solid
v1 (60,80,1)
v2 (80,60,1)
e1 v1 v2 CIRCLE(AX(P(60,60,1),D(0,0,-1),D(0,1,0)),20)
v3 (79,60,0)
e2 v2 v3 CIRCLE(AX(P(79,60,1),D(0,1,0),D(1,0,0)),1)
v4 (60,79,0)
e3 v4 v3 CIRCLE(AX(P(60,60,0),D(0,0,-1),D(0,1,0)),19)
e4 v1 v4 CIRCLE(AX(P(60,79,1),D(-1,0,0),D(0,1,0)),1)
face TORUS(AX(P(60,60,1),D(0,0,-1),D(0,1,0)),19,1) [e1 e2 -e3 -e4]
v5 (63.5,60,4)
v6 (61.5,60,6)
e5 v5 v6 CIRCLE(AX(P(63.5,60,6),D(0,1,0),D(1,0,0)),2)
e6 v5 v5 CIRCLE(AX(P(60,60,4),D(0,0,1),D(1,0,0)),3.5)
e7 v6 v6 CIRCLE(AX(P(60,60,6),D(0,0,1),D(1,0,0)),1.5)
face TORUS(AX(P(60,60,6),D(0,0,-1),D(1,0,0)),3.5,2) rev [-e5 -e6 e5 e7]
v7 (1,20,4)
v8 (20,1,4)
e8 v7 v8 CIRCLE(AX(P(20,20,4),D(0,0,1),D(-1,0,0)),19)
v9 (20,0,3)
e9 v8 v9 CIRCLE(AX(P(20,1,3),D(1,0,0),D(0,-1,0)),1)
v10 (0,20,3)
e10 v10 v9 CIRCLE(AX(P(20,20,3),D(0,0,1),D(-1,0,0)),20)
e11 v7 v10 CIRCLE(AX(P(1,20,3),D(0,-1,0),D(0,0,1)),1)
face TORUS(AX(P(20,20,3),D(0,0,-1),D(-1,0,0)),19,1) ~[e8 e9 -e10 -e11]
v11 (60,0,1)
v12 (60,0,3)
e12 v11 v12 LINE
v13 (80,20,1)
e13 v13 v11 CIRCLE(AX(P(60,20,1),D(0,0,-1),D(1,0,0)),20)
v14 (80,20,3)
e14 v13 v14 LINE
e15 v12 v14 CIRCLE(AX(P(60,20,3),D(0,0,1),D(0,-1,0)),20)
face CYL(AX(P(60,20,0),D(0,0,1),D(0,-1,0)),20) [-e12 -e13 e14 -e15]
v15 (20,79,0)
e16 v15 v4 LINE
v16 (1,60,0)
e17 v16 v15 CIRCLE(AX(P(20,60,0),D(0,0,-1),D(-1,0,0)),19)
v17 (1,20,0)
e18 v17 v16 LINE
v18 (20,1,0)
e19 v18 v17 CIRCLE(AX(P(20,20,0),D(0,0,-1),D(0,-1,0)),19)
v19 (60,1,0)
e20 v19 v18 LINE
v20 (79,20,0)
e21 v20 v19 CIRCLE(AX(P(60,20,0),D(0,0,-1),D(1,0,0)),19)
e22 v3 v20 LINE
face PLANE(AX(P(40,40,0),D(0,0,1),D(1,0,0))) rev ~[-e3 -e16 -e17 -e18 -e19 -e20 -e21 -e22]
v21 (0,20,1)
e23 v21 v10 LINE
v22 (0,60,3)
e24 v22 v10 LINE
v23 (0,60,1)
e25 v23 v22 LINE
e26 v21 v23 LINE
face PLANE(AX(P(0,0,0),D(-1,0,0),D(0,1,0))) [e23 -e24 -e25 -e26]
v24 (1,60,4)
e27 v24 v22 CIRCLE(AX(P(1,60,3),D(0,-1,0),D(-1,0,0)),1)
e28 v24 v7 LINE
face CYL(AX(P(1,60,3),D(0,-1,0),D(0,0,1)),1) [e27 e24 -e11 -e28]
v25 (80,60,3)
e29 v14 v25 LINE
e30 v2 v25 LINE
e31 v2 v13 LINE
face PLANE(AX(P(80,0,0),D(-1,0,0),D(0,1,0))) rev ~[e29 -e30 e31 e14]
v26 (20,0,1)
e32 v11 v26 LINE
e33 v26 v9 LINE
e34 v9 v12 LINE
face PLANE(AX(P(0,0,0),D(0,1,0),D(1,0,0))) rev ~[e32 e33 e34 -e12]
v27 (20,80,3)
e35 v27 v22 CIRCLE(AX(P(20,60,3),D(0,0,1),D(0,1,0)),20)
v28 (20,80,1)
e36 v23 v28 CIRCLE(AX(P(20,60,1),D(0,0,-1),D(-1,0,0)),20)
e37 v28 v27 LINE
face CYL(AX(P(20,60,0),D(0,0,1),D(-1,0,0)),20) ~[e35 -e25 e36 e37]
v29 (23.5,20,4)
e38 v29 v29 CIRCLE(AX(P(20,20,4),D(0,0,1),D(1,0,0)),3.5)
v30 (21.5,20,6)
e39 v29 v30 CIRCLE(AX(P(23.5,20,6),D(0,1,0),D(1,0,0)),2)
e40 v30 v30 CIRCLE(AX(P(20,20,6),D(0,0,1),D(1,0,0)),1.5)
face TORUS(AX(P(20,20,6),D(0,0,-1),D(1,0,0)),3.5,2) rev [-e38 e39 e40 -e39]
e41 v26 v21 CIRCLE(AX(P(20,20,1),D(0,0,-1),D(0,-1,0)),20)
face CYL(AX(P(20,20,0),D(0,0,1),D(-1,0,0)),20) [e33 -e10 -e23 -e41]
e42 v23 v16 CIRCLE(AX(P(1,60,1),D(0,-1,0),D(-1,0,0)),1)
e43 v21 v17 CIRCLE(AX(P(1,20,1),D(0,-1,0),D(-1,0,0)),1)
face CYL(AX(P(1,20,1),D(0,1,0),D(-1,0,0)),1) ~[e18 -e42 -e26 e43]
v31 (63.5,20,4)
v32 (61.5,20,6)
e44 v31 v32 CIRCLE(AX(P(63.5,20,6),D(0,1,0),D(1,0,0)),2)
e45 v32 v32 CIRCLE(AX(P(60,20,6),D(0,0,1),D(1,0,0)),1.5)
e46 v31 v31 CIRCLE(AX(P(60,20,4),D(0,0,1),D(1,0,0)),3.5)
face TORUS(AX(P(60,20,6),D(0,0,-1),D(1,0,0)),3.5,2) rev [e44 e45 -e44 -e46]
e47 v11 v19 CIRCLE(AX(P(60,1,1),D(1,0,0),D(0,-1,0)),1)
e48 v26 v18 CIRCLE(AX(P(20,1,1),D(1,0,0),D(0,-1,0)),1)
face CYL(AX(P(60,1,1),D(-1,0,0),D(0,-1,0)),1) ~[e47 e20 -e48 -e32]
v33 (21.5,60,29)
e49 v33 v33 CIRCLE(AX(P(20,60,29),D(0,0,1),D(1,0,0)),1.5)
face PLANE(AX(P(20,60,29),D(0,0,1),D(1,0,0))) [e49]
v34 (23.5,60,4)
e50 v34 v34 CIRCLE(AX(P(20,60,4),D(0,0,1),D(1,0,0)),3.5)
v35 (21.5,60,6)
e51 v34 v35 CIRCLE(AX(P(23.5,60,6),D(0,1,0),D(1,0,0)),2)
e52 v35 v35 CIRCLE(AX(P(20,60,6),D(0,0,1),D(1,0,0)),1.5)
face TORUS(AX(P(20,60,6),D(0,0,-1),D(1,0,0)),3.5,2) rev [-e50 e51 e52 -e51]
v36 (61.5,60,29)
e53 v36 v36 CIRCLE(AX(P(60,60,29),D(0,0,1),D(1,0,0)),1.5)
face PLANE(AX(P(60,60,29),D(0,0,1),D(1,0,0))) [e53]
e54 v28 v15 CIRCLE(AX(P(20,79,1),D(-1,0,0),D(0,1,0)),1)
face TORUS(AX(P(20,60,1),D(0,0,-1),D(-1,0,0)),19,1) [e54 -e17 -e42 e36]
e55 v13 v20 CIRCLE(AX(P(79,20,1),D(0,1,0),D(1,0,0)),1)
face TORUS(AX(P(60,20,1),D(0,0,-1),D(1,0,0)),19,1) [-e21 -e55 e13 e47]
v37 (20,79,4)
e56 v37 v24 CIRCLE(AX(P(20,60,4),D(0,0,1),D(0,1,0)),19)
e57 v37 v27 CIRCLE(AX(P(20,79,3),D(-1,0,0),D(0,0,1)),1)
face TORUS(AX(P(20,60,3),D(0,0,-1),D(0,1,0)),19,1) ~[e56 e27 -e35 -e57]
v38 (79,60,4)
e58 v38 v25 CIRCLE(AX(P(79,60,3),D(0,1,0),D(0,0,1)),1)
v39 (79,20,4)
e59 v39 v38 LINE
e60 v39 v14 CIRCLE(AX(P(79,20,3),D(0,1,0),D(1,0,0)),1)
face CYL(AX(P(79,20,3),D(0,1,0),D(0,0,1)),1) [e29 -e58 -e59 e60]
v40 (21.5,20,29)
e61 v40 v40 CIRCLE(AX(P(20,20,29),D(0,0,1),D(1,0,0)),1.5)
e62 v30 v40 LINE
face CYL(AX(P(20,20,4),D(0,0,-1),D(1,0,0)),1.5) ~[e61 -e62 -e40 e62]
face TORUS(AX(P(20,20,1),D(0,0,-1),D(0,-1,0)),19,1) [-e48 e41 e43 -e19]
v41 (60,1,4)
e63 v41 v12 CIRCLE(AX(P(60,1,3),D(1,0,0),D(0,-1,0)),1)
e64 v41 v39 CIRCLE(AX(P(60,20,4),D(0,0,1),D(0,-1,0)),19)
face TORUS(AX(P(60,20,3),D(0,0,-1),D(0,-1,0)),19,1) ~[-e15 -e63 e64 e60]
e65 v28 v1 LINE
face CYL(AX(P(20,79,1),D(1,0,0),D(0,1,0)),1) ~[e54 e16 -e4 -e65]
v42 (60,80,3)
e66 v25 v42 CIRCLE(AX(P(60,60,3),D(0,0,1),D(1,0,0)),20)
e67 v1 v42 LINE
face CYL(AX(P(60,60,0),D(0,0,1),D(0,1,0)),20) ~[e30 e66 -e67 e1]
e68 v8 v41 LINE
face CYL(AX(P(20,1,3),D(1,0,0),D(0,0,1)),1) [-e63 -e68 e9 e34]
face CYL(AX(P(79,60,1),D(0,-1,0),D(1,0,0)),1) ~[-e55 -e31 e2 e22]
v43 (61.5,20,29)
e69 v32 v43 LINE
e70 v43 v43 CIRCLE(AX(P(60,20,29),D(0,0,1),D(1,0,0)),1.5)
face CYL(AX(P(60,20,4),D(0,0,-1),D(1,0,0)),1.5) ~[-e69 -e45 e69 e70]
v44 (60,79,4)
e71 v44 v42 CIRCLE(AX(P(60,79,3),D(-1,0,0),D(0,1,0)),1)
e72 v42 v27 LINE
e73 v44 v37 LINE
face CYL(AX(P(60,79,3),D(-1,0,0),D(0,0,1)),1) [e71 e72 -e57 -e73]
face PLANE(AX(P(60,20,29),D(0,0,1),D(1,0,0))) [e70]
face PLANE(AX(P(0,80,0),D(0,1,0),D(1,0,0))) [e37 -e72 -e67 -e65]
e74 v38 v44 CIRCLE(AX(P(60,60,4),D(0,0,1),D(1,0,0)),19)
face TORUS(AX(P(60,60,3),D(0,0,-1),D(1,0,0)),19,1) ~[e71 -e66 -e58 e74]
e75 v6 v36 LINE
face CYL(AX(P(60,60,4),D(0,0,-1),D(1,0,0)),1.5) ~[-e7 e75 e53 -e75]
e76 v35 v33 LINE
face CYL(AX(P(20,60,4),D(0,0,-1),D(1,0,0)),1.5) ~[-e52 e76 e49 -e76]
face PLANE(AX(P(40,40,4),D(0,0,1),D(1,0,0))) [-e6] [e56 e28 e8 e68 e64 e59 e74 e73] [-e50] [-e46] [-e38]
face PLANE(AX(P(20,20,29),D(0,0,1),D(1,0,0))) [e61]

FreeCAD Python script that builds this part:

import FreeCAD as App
import Part
import Sketcher


def edges_at(feature, points):
    """Names of the edges that pass closest to the given points."""
    edges = feature.Shape.Edges
    near = lambda p: min(range(len(edges)), key=lambda i: edges[i].distToShape(Part.Vertex(*p))[0])
    return sorted({f"Edge{near(p) + 1}" for p in points})


def add_polygon(sketch, points):
    """Adds a closed chain of lines whose ends are joined by coincident constraints."""
    first, n = sketch.GeometryCount, len(points)
    for a, b in zip(points, points[1:] + points[:1]):
        sketch.addGeometry(Part.LineSegment(App.Vector(*a, 0), App.Vector(*b, 0)), False)
    for i in range(n):
        sketch.addConstraint(Sketcher.Constraint("Coincident", first + i, 2, first + (i + 1) % n, 1))

doc = App.newDocument("Part")
params = doc.addObject("Spreadsheet::Sheet", "Params")
for row, (alias, value) in enumerate([
    ("sketch1_width", "80 mm"),
    ("pad1_length", "4 mm"),
    ("sketch2_diameter", "3 mm"),
    ("pad2_length", "25 mm"),
    ("fillet_radius", "20 mm"),
    ("fillet2_radius", "2 mm"),
    ("fillet3_radius", "1 mm"),
    ("fillet4_radius", "1 mm"),
], start=1):
    params.set(f"A{row}", alias)
    params.set(f"B{row}", "=" + value)
    params.setAlias(f"B{row}", alias)

body = doc.addObject("PartDesign::Body", "Body")

# Sketch on XY plane
sketch1 = body.newObject("Sketcher::SketchObject", "Sketch")
sketch1.AttachmentSupport = (doc.getObject("XY_Plane"), [""])
sketch1.MapMode = "FlatFace"
add_polygon(sketch1, [(0, 80), (0, 0), (80, 0), (80, 80)])  # lines 0-3
sketch1.addConstraint(Sketcher.Constraint("Vertical", 0))
sketch1.addConstraint(Sketcher.Constraint("Horizontal", 1))
sketch1.addConstraint(Sketcher.Constraint("Vertical", 2))
sketch1.addConstraint(Sketcher.Constraint("Horizontal", 3))
sketch1.addConstraint(Sketcher.Constraint("Coincident", 0, 2, -1, 1))
sketch1.addConstraint(Sketcher.Constraint("Equal", 3, 0))
sketch1.addConstraint(Sketcher.Constraint("DistanceX", 1, 1, 1, 2, 80.0))
sketch1.setExpression("Constraints[10]", "Params.sketch1_width")
pad1 = body.newObject("PartDesign::Pad", "Pad")
pad1.Profile = sketch1
pad1.setExpression("Length", "Params.pad1_length")

# Sketch on XY plane
sketch2 = body.newObject("Sketcher::SketchObject", "Sketch001")
sketch2.AttachmentSupport = (doc.getObject("XY_Plane"), [""])
sketch2.MapMode = "FlatFace"
sketch2.AttachmentOffset = App.Placement(App.Vector(0, 0, 4), App.Rotation())
sketch2.addGeometry(Part.Circle(App.Vector(20, 60, 0), App.Vector(0, 0, 1), 1.5), False)
sketch2.addGeometry(Part.Circle(App.Vector(60, 60, 0), App.Vector(0, 0, 1), 1.5), False)
sketch2.addGeometry(Part.Circle(App.Vector(20, 20, 0), App.Vector(0, 0, 1), 1.5), False)
sketch2.addGeometry(Part.Circle(App.Vector(60, 20, 0), App.Vector(0, 0, 1), 1.5), False)
sketch2.addConstraint(Sketcher.Constraint("Equal", 0, 1))
sketch2.addConstraint(Sketcher.Constraint("Equal", 1, 2))
sketch2.addConstraint(Sketcher.Constraint("Equal", 2, 3))
sketch2.addConstraint(Sketcher.Constraint("Horizontal", 0, 3, 1, 3))
sketch2.addConstraint(Sketcher.Constraint("Horizontal", 2, 3, 3, 3))
sketch2.addConstraint(Sketcher.Constraint("Vertical", 0, 3, 2, 3))
sketch2.addConstraint(Sketcher.Constraint("Vertical", 1, 3, 3, 3))
sketch2.addConstraint(Sketcher.Constraint("Diameter", 0, 3.0))
sketch2.addConstraint(Sketcher.Constraint("DistanceX", -1, 1, 0, 3, 20.0))
sketch2.addConstraint(Sketcher.Constraint("DistanceY", -1, 1, 0, 3, 60.0))
sketch2.addConstraint(Sketcher.Constraint("DistanceX", -1, 1, 1, 3, 60.0))
sketch2.addConstraint(Sketcher.Constraint("DistanceY", -1, 1, 2, 3, 20.0))
sketch2.setExpression("Constraints[7]", "Params.sketch2_diameter")
pad2 = body.newObject("PartDesign::Pad", "Pad001")
pad2.Profile = sketch2
pad2.setExpression("Length", "Params.pad2_length")
doc.recompute()

fillet = body.newObject("PartDesign::Fillet", "Fillet")
fillet.Base = (pad2, edges_at(pad2, [
    (0, 80, 2),
    (80, 80, 2),
    (80, 0, 2),
    (0, 0, 2),
]))
fillet.setExpression("Radius", "Params.fillet_radius")
doc.recompute()

fillet2 = body.newObject("PartDesign::Fillet", "Fillet001")
fillet2.Base = (fillet, edges_at(fillet, [
    (18.5, 60, 4),
    (18.5, 20, 4),
    (58.5, 20, 4),
    (58.5, 60, 4),
]))
fillet2.setExpression("Radius", "Params.fillet2_radius")
doc.recompute()

fillet3 = body.newObject("PartDesign::Fillet", "Fillet002")
fillet3.Base = (fillet2, edges_at(fillet2, [
    (40, 80, 0),
    (5.858, 74.142, 0),
    (74.142, 74.142, 0),
    (0, 40, 0),
    (80, 40, 0),
    (5.858, 5.858, 0),
    (74.142, 5.858, 0),
    (40, 0, 0),
]))
fillet3.setExpression("Radius", "Params.fillet3_radius")
doc.recompute()

fillet4 = body.newObject("PartDesign::Fillet", "Fillet003")
fillet4.Base = (fillet3, edges_at(fillet3, [
    (74.142, 5.858, 4),
    (80, 40, 4),
    (74.142, 74.142, 4),
    (40, 80, 4),
    (5.858, 74.142, 4),
    (0, 40, 4),
    (5.858, 5.858, 4),
    (40, 0, 4),
]))
fillet4.setExpression("Radius", "Params.fillet4_radius")

doc.recompute()
